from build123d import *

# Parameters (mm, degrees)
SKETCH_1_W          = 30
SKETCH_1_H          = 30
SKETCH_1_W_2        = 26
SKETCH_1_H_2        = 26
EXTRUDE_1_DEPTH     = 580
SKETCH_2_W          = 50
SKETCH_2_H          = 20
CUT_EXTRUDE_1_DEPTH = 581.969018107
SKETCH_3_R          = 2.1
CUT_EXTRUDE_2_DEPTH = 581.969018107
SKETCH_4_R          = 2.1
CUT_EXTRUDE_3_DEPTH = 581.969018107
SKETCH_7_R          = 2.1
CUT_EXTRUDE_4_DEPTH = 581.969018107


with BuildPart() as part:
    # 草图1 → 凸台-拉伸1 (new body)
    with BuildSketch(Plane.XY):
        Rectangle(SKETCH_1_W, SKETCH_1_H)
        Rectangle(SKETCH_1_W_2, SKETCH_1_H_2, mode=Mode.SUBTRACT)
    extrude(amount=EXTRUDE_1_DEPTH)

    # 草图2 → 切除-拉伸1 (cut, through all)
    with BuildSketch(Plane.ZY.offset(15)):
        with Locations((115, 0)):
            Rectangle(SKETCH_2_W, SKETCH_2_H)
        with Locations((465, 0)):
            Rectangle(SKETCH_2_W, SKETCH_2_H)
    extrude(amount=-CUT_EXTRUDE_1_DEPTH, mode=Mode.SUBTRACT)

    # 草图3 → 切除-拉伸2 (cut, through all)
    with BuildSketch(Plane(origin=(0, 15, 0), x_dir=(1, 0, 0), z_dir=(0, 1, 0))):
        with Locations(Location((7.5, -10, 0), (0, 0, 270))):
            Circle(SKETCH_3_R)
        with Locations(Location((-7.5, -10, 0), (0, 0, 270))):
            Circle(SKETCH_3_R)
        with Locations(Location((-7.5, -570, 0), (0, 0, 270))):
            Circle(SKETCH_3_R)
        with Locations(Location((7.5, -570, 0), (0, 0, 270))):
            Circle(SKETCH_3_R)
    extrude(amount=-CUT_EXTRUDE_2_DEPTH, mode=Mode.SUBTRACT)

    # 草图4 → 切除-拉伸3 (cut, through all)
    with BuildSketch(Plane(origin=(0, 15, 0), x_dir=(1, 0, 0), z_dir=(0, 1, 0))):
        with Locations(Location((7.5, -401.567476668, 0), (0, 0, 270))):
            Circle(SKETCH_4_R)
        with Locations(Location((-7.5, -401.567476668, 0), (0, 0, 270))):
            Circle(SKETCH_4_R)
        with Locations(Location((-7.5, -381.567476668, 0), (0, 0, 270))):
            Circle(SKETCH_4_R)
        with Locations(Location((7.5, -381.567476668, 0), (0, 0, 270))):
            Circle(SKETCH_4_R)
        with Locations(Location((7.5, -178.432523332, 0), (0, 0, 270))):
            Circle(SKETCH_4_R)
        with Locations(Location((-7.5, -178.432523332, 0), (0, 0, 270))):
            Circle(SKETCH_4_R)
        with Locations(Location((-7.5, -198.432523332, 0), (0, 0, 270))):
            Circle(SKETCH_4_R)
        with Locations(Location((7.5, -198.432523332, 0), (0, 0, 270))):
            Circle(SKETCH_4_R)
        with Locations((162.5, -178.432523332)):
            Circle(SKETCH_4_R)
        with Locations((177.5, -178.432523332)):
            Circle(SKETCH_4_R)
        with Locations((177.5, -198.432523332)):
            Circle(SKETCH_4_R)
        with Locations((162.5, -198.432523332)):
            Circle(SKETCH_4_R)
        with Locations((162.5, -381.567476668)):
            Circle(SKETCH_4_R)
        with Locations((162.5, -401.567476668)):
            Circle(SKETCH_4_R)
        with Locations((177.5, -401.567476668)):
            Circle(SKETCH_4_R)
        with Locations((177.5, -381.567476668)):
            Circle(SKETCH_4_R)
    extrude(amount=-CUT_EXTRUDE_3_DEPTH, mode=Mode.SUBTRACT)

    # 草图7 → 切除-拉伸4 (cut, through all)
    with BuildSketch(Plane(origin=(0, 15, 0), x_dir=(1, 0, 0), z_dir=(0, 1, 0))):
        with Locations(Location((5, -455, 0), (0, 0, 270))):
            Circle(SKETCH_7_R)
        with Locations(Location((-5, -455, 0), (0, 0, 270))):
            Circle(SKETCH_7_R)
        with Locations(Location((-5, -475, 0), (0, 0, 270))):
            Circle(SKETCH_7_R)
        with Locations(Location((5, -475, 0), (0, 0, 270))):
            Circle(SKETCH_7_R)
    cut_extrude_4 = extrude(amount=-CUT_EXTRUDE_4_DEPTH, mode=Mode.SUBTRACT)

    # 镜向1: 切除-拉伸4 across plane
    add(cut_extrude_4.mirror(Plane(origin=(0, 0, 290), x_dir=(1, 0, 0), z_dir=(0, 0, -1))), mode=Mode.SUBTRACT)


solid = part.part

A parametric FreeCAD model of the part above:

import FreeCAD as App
import Part
import Sketcher
from FreeCAD import Vector

doc = App.newDocument("Part")
body = doc.addObject("PartDesign::Body", "Body")

# Sketch on XY plane
sketch1 = body.newObject("Sketcher::SketchObject", "Sketch")
sketch1.AttachmentSupport = (doc.getObject("XY_Plane"), [""])
sketch1.MapMode = "FlatFace"
sketch1.addGeometry(Part.LineSegment(Vector(-15, 15, 0), Vector(-15, -15, 0)), False)
sketch1.addGeometry(Part.LineSegment(Vector(-15, -15, 0), Vector(15, -15, 0)), False)
sketch1.addGeometry(Part.LineSegment(Vector(15, -15, 0), Vector(15, 15, 0)), False)
sketch1.addGeometry(Part.LineSegment(Vector(15, 15, 0), Vector(-15, 15, 0)), False)
sketch1.addGeometry(Part.LineSegment(Vector(13, -13, 0), Vector(-13, -13, 0)), False)
sketch1.addGeometry(Part.LineSegment(Vector(-13, -13, 0), Vector(-13, 13, 0)), False)
sketch1.addGeometry(Part.LineSegment(Vector(-13, 13, 0), Vector(13, 13, 0)), False)
sketch1.addGeometry(Part.LineSegment(Vector(13, 13, 0), Vector(13, -13, 0)), False)
sketch1.addConstraint(Sketcher.Constraint("Coincident", 0, 2, 1, 1))
sketch1.addConstraint(Sketcher.Constraint("Coincident", 1, 2, 2, 1))
sketch1.addConstraint(Sketcher.Constraint("Coincident", 2, 2, 3, 1))
sketch1.addConstraint(Sketcher.Constraint("Coincident", 3, 2, 0, 1))
sketch1.addConstraint(Sketcher.Constraint("Coincident", 4, 2, 5, 1))
sketch1.addConstraint(Sketcher.Constraint("Coincident", 5, 2, 6, 1))
sketch1.addConstraint(Sketcher.Constraint("Coincident", 6, 2, 7, 1))
sketch1.addConstraint(Sketcher.Constraint("Coincident", 7, 2, 4, 1))
sketch1.addConstraint(Sketcher.Constraint("Vertical", 0))
sketch1.addConstraint(Sketcher.Constraint("Horizontal", 1))
sketch1.addConstraint(Sketcher.Constraint("Vertical", 2))
sketch1.addConstraint(Sketcher.Constraint("Horizontal", 3))
sketch1.addConstraint(Sketcher.Constraint("Horizontal", 4))
sketch1.addConstraint(Sketcher.Constraint("Vertical", 5))
sketch1.addConstraint(Sketcher.Constraint("Horizontal", 6))
sketch1.addConstraint(Sketcher.Constraint("Vertical", 7))
sketch1.addConstraint(Sketcher.Constraint("Symmetric", 0, 2, 2, 2, -1, 1))
sketch1.addConstraint(Sketcher.Constraint("Symmetric", 4, 2, 6, 2, -1, 1))
sketch1.addConstraint(Sketcher.Constraint("Equal", 3, 0))
sketch1.addConstraint(Sketcher.Constraint("Equal", 6, 5))
sketch1.addConstraint(Sketcher.Constraint("DistanceX", 1, 1, 1, 2, 30.0))
sketch1.addConstraint(Sketcher.Constraint("DistanceX", 4, 2, 4, 1, 26.0))
pad1 = body.newObject("PartDesign::Pad", "Pad")
pad1.Profile = sketch1
pad1.Length = 580

# Sketch on YZ plane
sketch2 = body.newObject("Sketcher::SketchObject", "Sketch001")
sketch2.AttachmentSupport = (doc.getObject("YZ_Plane"), [""])
sketch2.MapMode = "FlatFace"
sketch2.AttachmentOffset = App.Placement(Vector(0, 0, -15), App.Rotation())
sketch2.addGeometry(Part.LineSegment(Vector(10, 90, 0), Vector(-10, 90, 0)), False)
sketch2.addGeometry(Part.LineSegment(Vector(-10, 90, 0), Vector(-10, 140, 0)), False)
sketch2.addGeometry(Part.LineSegment(Vector(-10, 140, 0), Vector(10, 140, 0)), False)
sketch2.addGeometry(Part.LineSegment(Vector(10, 140, 0), Vector(10, 90, 0)), False)
sketch2.addGeometry(Part.LineSegment(Vector(10, 440, 0), Vector(-10, 440, 0)), False)
sketch2.addGeometry(Part.LineSegment(Vector(-10, 440, 0), Vector(-10, 490, 0)), False)
sketch2.addGeometry(Part.LineSegment(Vector(-10, 490, 0), Vector(10, 490, 0)), False)
sketch2.addGeometry(Part.LineSegment(Vector(10, 490, 0), Vector(10, 440, 0)), False)
sketch2.addConstraint(Sketcher.Constraint("Coincident", 0, 2, 1, 1))
sketch2.addConstraint(Sketcher.Constraint("Coincident", 1, 2, 2, 1))
sketch2.addConstraint(Sketcher.Constraint("Coincident", 2, 2, 3, 1))
sketch2.addConstraint(Sketcher.Constraint("Coincident", 3, 2, 0, 1))
sketch2.addConstraint(Sketcher.Constraint("Coincident", 4, 2, 5, 1))
sketch2.addConstraint(Sketcher.Constraint("Coincident", 5, 2, 6, 1))
sketch2.addConstraint(Sketcher.Constraint("Coincident", 6, 2, 7, 1))
sketch2.addConstraint(Sketcher.Constraint("Coincident", 7, 2, 4, 1))
sketch2.addConstraint(Sketcher.Constraint("Horizontal", 0))
sketch2.addConstraint(Sketcher.Constraint("Vertical", 1))
sketch2.addConstraint(Sketcher.Constraint("Horizontal", 2))
sketch2.addConstraint(Sketcher.Constraint("Vertical", 3))
sketch2.addConstraint(Sketcher.Constraint("Horizontal", 4))
sketch2.addConstraint(Sketcher.Constraint("Vertical", 5))
sketch2.addConstraint(Sketcher.Constraint("Horizontal", 6))
sketch2.addConstraint(Sketcher.Constraint("Vertical", 7))
sketch2.addConstraint(Sketcher.Constraint("Vertical", 1, 2, 4, 2))
sketch2.addConstraint(Sketcher.Constraint("Vertical", 3, 2, 6, 2))
sketch2.addConstraint(Sketcher.Constraint("Equal", 3, 5))
sketch2.addConstraint(Sketcher.Constraint("DistanceX", 0, 2, 0, 1, 20.0))
sketch2.addConstraint(Sketcher.Constraint("DistanceY", 1, 1, 1, 2, 50.0))
sketch2.addConstraint(Sketcher.Constraint("DistanceX", 0, 2, -1, 1, 10.0))
sketch2.addConstraint(Sketcher.Constraint("DistanceY", -1, 1, 0, 2, 90.0))
sketch2.addConstraint(Sketcher.Constraint("DistanceY", -1, 1, 4, 2, 440.0))
pocket1 = body.newObject("PartDesign::Pocket", "Pocket")
pocket1.Profile = sketch2
pocket1.Type = "ThroughAll"
pocket1.Reversed = True

# Sketch on XZ plane
sketch3 = body.newObject("Sketcher::SketchObject", "Sketch002")
sketch3.AttachmentSupport = (doc.getObject("XZ_Plane"), [""])
sketch3.MapMode = "FlatFace"
sketch3.AttachmentOffset = App.Placement(Vector(0, 0, -15), App.Rotation())
sketch3.addGeometry(Part.Circle(Vector(7.5, 10, 0), Vector(0, 0, 1), 2.1), False)
sketch3.addGeometry(Part.Circle(Vector(-7.5, 10, 0), Vector(0, 0, 1), 2.1), False)
sketch3.addGeometry(Part.Circle(Vector(-7.5, 570, 0), Vector(0, 0, 1), 2.1), False)
sketch3.addGeometry(Part.Circle(Vector(7.5, 570, 0), Vector(0, 0, 1), 2.1), False)
sketch3.addConstraint(Sketcher.Constraint("Equal", 0, 1))
sketch3.addConstraint(Sketcher.Constraint("Equal", 1, 2))
sketch3.addConstraint(Sketcher.Constraint("Equal", 2, 3))
sketch3.addConstraint(Sketcher.Constraint("Symmetric", 0, 3, 1, 3, -2))
sketch3.addConstraint(Sketcher.Constraint("Symmetric", 2, 3, 3, 3, -2))
sketch3.addConstraint(Sketcher.Constraint("Vertical", 1, 3, 2, 3))
sketch3.addConstraint(Sketcher.Constraint("Diameter", 0, 4.2))
sketch3.addConstraint(Sketcher.Constraint("DistanceY", -1, 1, 0, 3, 10.0))
sketch3.addConstraint(Sketcher.Constraint("DistanceY", -1, 1, 2, 3, 570.0))
sketch3.addConstraint(Sketcher.Constraint("DistanceX", 1, 3, 0, 3, 15.0))
pocket2 = body.newObject("PartDesign::Pocket", "Pocket001")
pocket2.Profile = sketch3
pocket2.Type = "ThroughAll"
pocket2.Reversed = True

# Sketch on XZ plane
sketch4 = body.newObject("Sketcher::SketchObject", "Sketch003")
sketch4.AttachmentSupport = (doc.getObject("XZ_Plane"), [""])
sketch4.MapMode = "FlatFace"
sketch4.AttachmentOffset = App.Placement(Vector(0, 0, -15), App.Rotation())
sketch4.addGeometry(Part.Circle(Vector(7.5, 401.6, 0), Vector(0, 0, 1), 2.1), False)
sketch4.addGeometry(Part.Circle(Vector(-7.5, 401.6, 0), Vector(0, 0, 1), 2.1), False)
sketch4.addGeometry(Part.Circle(Vector(-7.5, 381.6, 0), Vector(0, 0, 1), 2.1), False)
sketch4.addGeometry(Part.Circle(Vector(7.5, 381.6, 0), Vector(0, 0, 1), 2.1), False)
sketch4.addGeometry(Part.Circle(Vector(7.5, 178.4, 0), Vector(0, 0, 1), 2.1), False)
sketch4.addGeometry(Part.Circle(Vector(-7.5, 178.4, 0), Vector(0, 0, 1), 2.1), False)
sketch4.addGeometry(Part.Circle(Vector(-7.5, 198.4, 0), Vector(0, 0, 1), 2.1), False)
sketch4.addGeometry(Part.Circle(Vector(7.5, 198.4, 0), Vector(0, 0, 1), 2.1), False)
sketch4.addGeometry(Part.Circle(Vector(162.5, 178.4, 0), Vector(0, 0, 1), 2.1), False)
sketch4.addGeometry(Part.Circle(Vector(177.5, 178.4, 0), Vector(0, 0, 1), 2.1), False)
sketch4.addGeometry(Part.Circle(Vector(177.5, 198.4, 0), Vector(0, 0, 1), 2.1), False)
sketch4.addGeometry(Part.Circle(Vector(162.5, 198.4, 0), Vector(0, 0, 1), 2.1), False)
sketch4.addGeometry(Part.Circle(Vector(162.5, 381.6, 0), Vector(0, 0, 1), 2.1), False)
sketch4.addGeometry(Part.Circle(Vector(162.5, 401.6, 0), Vector(0, 0, 1), 2.1), False)
sketch4.addGeometry(Part.Circle(Vector(177.5, 401.6, 0), Vector(0, 0, 1), 2.1), False)
sketch4.addGeometry(Part.Circle(Vector(177.5, 381.6, 0), Vector(0, 0, 1), 2.1), False)
sketch4.addConstraint(Sketcher.Constraint("Equal", 0, 1))
sketch4.addConstraint(Sketcher.Constraint("Equal", 1, 2))
sketch4.addConstraint(Sketcher.Constraint("Equal", 2, 3))
sketch4.addConstraint(Sketcher.Constraint("Equal", 3, 4))
sketch4.addConstraint(Sketcher.Constraint("Equal", 4, 5))
sketch4.addConstraint(Sketcher.Constraint("Equal", 5, 6))
sketch4.addConstraint(Sketcher.Constraint("Equal", 6, 7))
sketch4.addConstraint(Sketcher.Constraint("Equal", 7, 8))
sketch4.addConstraint(Sketcher.Constraint("Equal", 8, 9))
sketch4.addConstraint(Sketcher.Constraint("Equal", 9, 10))
sketch4.addConstraint(Sketcher.Constraint("Equal", 10, 11))
sketch4.addConstraint(Sketcher.Constraint("Equal", 11, 12))
sketch4.addConstraint(Sketcher.Constraint("Equal", 12, 13))
sketch4.addConstraint(Sketcher.Constraint("Equal", 13, 14))
sketch4.addConstraint(Sketcher.Constraint("Equal", 14, 15))
sketch4.addConstraint(Sketcher.Constraint("Symmetric", 0, 3, 1, 3, -2))
sketch4.addConstraint(Sketcher.Constraint("Symmetric", 2, 3, 3, 3, -2))
sketch4.addConstraint(Sketcher.Constraint("Symmetric", 4, 3, 5, 3, -2))
sketch4.addConstraint(Sketcher.Constraint("Symmetric", 6, 3, 7, 3, -2))
sketch4.addConstraint(Sketcher.Constraint("Horizontal", 5, 3, 8, 3))
sketch4.addConstraint(Sketcher.Constraint("Horizontal", 8, 3, 9, 3))
sketch4.addConstraint(Sketcher.Constraint("Horizontal", 7, 3, 10, 3))
sketch4.addConstraint(Sketcher.Constraint("Horizontal", 10, 3, 11, 3))
sketch4.addConstraint(Sketcher.Constraint("Horizontal", 3, 3, 12, 3))
sketch4.addConstraint(Sketcher.Constraint("Horizontal", 1, 3, 13, 3))
sketch4.addConstraint(Sketcher.Constraint("Horizontal", 13, 3, 14, 3))
sketch4.addConstraint(Sketcher.Constraint("Horizontal", 12, 3, 15, 3))
sketch4.addConstraint(Sketcher.Constraint("Vertical", 1, 3, 2, 3))
sketch4.addConstraint(Sketcher.Constraint("Vertical", 3, 3, 4, 3))
sketch4.addConstraint(Sketcher.Constraint("Vertical", 5, 3, 6, 3))
sketch4.addConstraint(Sketcher.Constraint("Vertical", 9, 3, 10, 3))
sketch4.addConstraint(Sketcher.Constraint("Vertical", 8, 3, 11, 3))
sketch4.addConstraint(Sketcher.Constraint("Vertical", 11, 3, 12, 3))
sketch4.addConstraint(Sketcher.Constraint("Vertical", 12, 3, 13, 3))
sketch4.addConstraint(Sketcher.Constraint("Vertical", 10, 3, 14, 3))
sketch4.addConstraint(Sketcher.Constraint("Vertical", 14, 3, 15, 3))
sketch4.addConstraint(Sketcher.Constraint("Diameter", 0, 4.2))
sketch4.addConstraint(Sketcher.Constraint("DistanceX", 1, 3, 0, 3, 15.0))
sketch4.addConstraint(Sketcher.Constraint("DistanceY", 2, 3, 1, 3, 20.0))
sketch4.addConstraint(Sketcher.Constraint("DistanceY", 5, 3, 6, 3, 20.0))
sketch4.addConstraint(Sketcher.Constraint("DistanceX", 4, 3, 8, 3, 155.0))
sketch4.addConstraint(Sketcher.Constraint("DistanceX", 8, 3, 9, 3, 15.0))
sketch4.addConstraint(Sketcher.Constraint("DistanceY", -1, 1, 0, 3, 401.567477))
sketch4.addConstraint(Sketcher.Constraint("DistanceY", -1, 1, 4, 3, 178.432523))
pocket3 = body.newObject("PartDesign::Pocket", "Pocket002")
pocket3.Profile = sketch4
pocket3.Type = "ThroughAll"
pocket3.Reversed = True

# Sketch on XZ plane
sketch5 = body.newObject("Sketcher::SketchObject", "Sketch004")
sketch5.AttachmentSupport = (doc.getObject("XZ_Plane"), [""])
sketch5.MapMode = "FlatFace"
sketch5.AttachmentOffset = App.Placement(Vector(0, 0, -15), App.Rotation())
sketch5.addGeometry(Part.Circle(Vector(5, 455, 0), Vector(0, 0, 1), 2.1), False)
sketch5.addGeometry(Part.Circle(Vector(-5, 455, 0), Vector(0, 0, 1), 2.1), False)
sketch5.addGeometry(Part.Circle(Vector(-5, 475, 0), Vector(0, 0, 1), 2.1), False)
sketch5.addGeometry(Part.Circle(Vector(5, 475, 0), Vector(0, 0, 1), 2.1), False)
sketch5.addConstraint(Sketcher.Constraint("Equal", 0, 1))
sketch5.addConstraint(Sketcher.Constraint("Equal", 1, 2))
sketch5.addConstraint(Sketcher.Constraint("Equal", 2, 3))
sketch5.addConstraint(Sketcher.Constraint("Symmetric", 0, 3, 1, 3, -2))
sketch5.addConstraint(Sketcher.Constraint("Symmetric", 2, 3, 3, 3, -2))
sketch5.addConstraint(Sketcher.Constraint("Vertical", 1, 3, 2, 3))
sketch5.addConstraint(Sketcher.Constraint("Diameter", 0, 4.2))
sketch5.addConstraint(Sketcher.Constraint("DistanceX", -1, 1, 0, 3, 5.0))
sketch5.addConstraint(Sketcher.Constraint("DistanceY", -1, 1, 0, 3, 455.0))
sketch5.addConstraint(Sketcher.Constraint("DistanceY", -1, 1, 2, 3, 475.0))
pocket4 = body.newObject("PartDesign::Pocket", "Pocket003")
pocket4.Profile = sketch5
pocket4.Type = "ThroughAll"
pocket4.Reversed = True
doc.recompute()

datumplane = body.newObject("PartDesign::Plane", "DatumPlane")
datumplane.AttachmentSupport = (doc.getObject("XY_Plane"), [""])
datumplane.MapMode = "FlatFace"
datumplane.AttachmentOffset = App.Placement(Vector(0, 0, 290), App.Rotation())
mirrored = body.newObject("PartDesign::Mirrored", "Mirrored")
mirrored.Originals = [pocket4]
mirrored.MirrorPlane = (datumplane, [""])
body.Tip = mirrored

doc.recompute()
